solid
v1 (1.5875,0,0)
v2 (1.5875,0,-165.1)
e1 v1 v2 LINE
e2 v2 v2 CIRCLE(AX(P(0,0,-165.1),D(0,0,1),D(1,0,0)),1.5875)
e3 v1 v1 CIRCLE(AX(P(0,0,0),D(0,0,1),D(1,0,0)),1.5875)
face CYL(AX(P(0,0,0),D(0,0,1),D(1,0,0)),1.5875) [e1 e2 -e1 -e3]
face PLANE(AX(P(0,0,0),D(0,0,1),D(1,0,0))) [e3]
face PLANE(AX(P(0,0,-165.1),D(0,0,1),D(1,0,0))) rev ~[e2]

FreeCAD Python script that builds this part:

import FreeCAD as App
import Part
import Sketcher
from FreeCAD import Vector
Q = App.Units.Quantity

doc = App.newDocument("Part")
body = doc.addObject("PartDesign::Body", "Body")

# Sketch on XY plane
sketch1 = body.newObject("Sketcher::SketchObject", "Sketch")
sketch1.AttachmentSupport = (doc.getObject("XY_Plane"), [""])
sketch1.MapMode = "FlatFace"
sketch1.addGeometry(Part.Circle(Vector(0, 0, 0), Vector(0, 0, 1), 1.6), False)
sketch1.addConstraint(Sketcher.Constraint("Coincident", 0, 3, -1, 1))
sketch1.addConstraint(Sketcher.Constraint("Diameter", 0, Q("0.125 in")))
pad1 = body.newObject("PartDesign::Pad", "Pad")
pad1.Profile = sketch1
pad1.Length = Q("6.5 in")
pad1.Reversed = True

doc.recompute()
